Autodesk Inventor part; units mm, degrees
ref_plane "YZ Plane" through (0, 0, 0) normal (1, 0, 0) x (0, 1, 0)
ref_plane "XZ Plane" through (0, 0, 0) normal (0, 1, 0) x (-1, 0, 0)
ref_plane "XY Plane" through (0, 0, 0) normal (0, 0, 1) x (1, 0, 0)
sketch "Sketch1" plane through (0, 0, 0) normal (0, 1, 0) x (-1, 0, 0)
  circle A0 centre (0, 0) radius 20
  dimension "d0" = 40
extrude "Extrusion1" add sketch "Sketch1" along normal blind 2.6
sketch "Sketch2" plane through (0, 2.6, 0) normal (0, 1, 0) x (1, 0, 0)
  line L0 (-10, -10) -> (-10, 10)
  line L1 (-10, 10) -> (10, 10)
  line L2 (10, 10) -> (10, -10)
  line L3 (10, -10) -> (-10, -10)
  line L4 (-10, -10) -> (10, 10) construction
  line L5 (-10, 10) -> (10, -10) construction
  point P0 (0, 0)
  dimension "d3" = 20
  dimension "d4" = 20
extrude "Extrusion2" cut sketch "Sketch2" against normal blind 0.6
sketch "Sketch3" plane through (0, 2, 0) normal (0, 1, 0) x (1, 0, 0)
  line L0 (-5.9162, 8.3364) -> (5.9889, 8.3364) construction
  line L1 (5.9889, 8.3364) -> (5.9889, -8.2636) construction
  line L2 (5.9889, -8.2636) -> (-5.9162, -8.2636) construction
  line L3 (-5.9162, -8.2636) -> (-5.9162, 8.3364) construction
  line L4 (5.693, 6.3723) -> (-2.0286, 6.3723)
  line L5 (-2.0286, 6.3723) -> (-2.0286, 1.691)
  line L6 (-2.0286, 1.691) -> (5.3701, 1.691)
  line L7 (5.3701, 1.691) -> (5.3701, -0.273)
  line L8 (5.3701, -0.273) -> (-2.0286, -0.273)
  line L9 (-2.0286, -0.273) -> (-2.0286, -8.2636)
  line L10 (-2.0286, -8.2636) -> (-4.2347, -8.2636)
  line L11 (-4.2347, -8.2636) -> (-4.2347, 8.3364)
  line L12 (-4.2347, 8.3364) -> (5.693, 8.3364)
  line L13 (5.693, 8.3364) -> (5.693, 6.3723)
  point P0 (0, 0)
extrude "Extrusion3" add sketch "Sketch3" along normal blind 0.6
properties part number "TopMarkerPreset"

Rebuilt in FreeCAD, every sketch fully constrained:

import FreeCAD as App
import Part
import Sketcher

V = App.Vector

doc = App.newDocument("Part")
body = doc.addObject("PartDesign::Body", "Body")

sketch1 = doc.addObject("Sketcher::SketchObject", "Sketch")
body.addObject(sketch1)
sketch1.AttachmentSupport = (doc.XZ_Plane, [""])
sketch1.MapMode = "FlatFace"
sketch1.addGeometry(Part.Circle(V(0, 0, 0), V(0, 0, 1), 20), False)
sketch1.addConstraint(Sketcher.Constraint("Coincident", 0, 3, -1, 1))
sketch1.addConstraint(Sketcher.Constraint("Diameter", 0, 40.0))
pad1 = doc.addObject("PartDesign::Pad", "Pad")
body.addObject(pad1)
pad1.Profile = sketch1
pad1.Length = 2.6
pad1.Reversed = True

sketch2 = doc.addObject("Sketcher::SketchObject", "Sketch001")
body.addObject(sketch2)
sketch2.AttachmentSupport = (doc.XZ_Plane, [""])
sketch2.MapMode = "FlatFace"
sketch2.AttachmentOffset = App.Placement(V(0, 0, -2.6), App.Rotation())
sketch2.addGeometry(Part.LineSegment(V(-10, -10, 0), V(-10, 10, 0)), False)
sketch2.addGeometry(Part.LineSegment(V(-10, 10, 0), V(10, 10, 0)), False)
sketch2.addGeometry(Part.LineSegment(V(10, 10, 0), V(10, -10, 0)), False)
sketch2.addGeometry(Part.LineSegment(V(10, -10, 0), V(-10, -10, 0)), False)
sketch2.addConstraint(Sketcher.Constraint("Coincident", 0, 2, 1, 1))
sketch2.addConstraint(Sketcher.Constraint("Coincident", 1, 2, 2, 1))
sketch2.addConstraint(Sketcher.Constraint("Coincident", 2, 2, 3, 1))
sketch2.addConstraint(Sketcher.Constraint("Coincident", 3, 2, 0, 1))
sketch2.addConstraint(Sketcher.Constraint("Vertical", 0))
sketch2.addConstraint(Sketcher.Constraint("Horizontal", 1))
sketch2.addConstraint(Sketcher.Constraint("Vertical", 2))
sketch2.addConstraint(Sketcher.Constraint("Horizontal", 3))
sketch2.addConstraint(Sketcher.Constraint("Symmetric", 0, 2, 2, 2, -1, 1))
sketch2.addConstraint(Sketcher.Constraint("Equal", 3, 0))
sketch2.addConstraint(Sketcher.Constraint("DistanceX", 1, 1, 1, 2, 20.0))
pocket1 = doc.addObject("PartDesign::Pocket", "Pocket")
body.addObject(pocket1)
pocket1.Profile = sketch2
pocket1.Length = 0.6
pocket1.Reversed = True

sketch3 = doc.addObject("Sketcher::SketchObject", "Sketch002")
body.addObject(sketch3)
sketch3.AttachmentSupport = (doc.XZ_Plane, [""])
sketch3.MapMode = "FlatFace"
sketch3.AttachmentOffset = App.Placement(V(0, 0, -2), App.Rotation())
sketch3.addGeometry(Part.LineSegment(V(-2, -6.4, 0), V(5.7, -6.4, 0)), False)
sketch3.addGeometry(Part.LineSegment(V(5.7, -6.4, 0), V(5.7, -8.3, 0)), False)
sketch3.addGeometry(Part.LineSegment(V(5.7, -8.3, 0), V(-4.2, -8.3, 0)), False)
sketch3.addGeometry(Part.LineSegment(V(-4.2, -8.3, 0), V(-4.2, 8.3, 0)), False)
sketch3.addGeometry(Part.LineSegment(V(-4.2, 8.3, 0), V(-2, 8.3, 0)), False)
sketch3.addGeometry(Part.LineSegment(V(-2, 8.3, 0), V(-2, 0.3, 0)), False)
sketch3.addGeometry(Part.LineSegment(V(-2, 0.3, 0), V(5.4, 0.3, 0)), False)
sketch3.addGeometry(Part.LineSegment(V(5.4, 0.3, 0), V(5.4, -1.7, 0)), False)
sketch3.addGeometry(Part.LineSegment(V(5.4, -1.7, 0), V(-2, -1.7, 0)), False)
sketch3.addGeometry(Part.LineSegment(V(-2, -1.7, 0), V(-2, -6.4, 0)), False)
sketch3.addConstraint(Sketcher.Constraint("Coincident", 0, 2, 1, 1))
sketch3.addConstraint(Sketcher.Constraint("Coincident", 1, 2, 2, 1))
sketch3.addConstraint(Sketcher.Constraint("Coincident", 2, 2, 3, 1))
sketch3.addConstraint(Sketcher.Constraint("Coincident", 3, 2, 4, 1))
sketch3.addConstraint(Sketcher.Constraint("Coincident", 4, 2, 5, 1))
sketch3.addConstraint(Sketcher.Constraint("Coincident", 5, 2, 6, 1))
sketch3.addConstraint(Sketcher.Constraint("Coincident", 6, 2, 7, 1))
sketch3.addConstraint(Sketcher.Constraint("Coincident", 7, 2, 8, 1))
sketch3.addConstraint(Sketcher.Constraint("Coincident", 8, 2, 9, 1))
sketch3.addConstraint(Sketcher.Constraint("Coincident", 9, 2, 0, 1))
sketch3.addConstraint(Sketcher.Constraint("Horizontal", 0))
sketch3.addConstraint(Sketcher.Constraint("Vertical", 1))
sketch3.addConstraint(Sketcher.Constraint("Horizontal", 2))
sketch3.addConstraint(Sketcher.Constraint("Vertical", 3))
sketch3.addConstraint(Sketcher.Constraint("Horizontal", 4))
sketch3.addConstraint(Sketcher.Constraint("Vertical", 5))
sketch3.addConstraint(Sketcher.Constraint("Horizontal", 6))
sketch3.addConstraint(Sketcher.Constraint("Vertical", 7))
sketch3.addConstraint(Sketcher.Constraint("Horizontal", 8))
sketch3.addConstraint(Sketcher.Constraint("Vertical", 9))
sketch3.addConstraint(Sketcher.Constraint("Vertical", 5, 2, 8, 2))
sketch3.addConstraint(Sketcher.Constraint("Equal", 1, 7))
sketch3.addConstraint(Sketcher.Constraint("DistanceY", 3, 1, 3, 2, 16.6))
sketch3.addConstraint(Sketcher.Constraint("DistanceX", 4, 1, 4, 2, 2.206))
sketch3.addConstraint(Sketcher.Constraint("DistanceY", 1, 2, 1, 1, 1.964))
sketch3.addConstraint(Sketcher.Constraint("DistanceX", -1, 1, 6, 2, 5.37))
sketch3.addConstraint(Sketcher.Constraint("DistanceX", 0, 1, 0, 2, 7.7216))
sketch3.addConstraint(Sketcher.Constraint("DistanceX", 6, 1, 6, 2, 7.3987))
sketch3.addConstraint(Sketcher.Constraint("DistanceY", 5, 2, 5, 1, 7.9906))
sketch3.addConstraint(Sketcher.Constraint("DistanceY", -1, 1, 5, 2, 0.273))
pad2 = doc.addObject("PartDesign::Pad", "Pad001")
body.addObject(pad2)
pad2.Profile = sketch3
pad2.Length = 0.6
pad2.Reversed = True

doc.recompute()
